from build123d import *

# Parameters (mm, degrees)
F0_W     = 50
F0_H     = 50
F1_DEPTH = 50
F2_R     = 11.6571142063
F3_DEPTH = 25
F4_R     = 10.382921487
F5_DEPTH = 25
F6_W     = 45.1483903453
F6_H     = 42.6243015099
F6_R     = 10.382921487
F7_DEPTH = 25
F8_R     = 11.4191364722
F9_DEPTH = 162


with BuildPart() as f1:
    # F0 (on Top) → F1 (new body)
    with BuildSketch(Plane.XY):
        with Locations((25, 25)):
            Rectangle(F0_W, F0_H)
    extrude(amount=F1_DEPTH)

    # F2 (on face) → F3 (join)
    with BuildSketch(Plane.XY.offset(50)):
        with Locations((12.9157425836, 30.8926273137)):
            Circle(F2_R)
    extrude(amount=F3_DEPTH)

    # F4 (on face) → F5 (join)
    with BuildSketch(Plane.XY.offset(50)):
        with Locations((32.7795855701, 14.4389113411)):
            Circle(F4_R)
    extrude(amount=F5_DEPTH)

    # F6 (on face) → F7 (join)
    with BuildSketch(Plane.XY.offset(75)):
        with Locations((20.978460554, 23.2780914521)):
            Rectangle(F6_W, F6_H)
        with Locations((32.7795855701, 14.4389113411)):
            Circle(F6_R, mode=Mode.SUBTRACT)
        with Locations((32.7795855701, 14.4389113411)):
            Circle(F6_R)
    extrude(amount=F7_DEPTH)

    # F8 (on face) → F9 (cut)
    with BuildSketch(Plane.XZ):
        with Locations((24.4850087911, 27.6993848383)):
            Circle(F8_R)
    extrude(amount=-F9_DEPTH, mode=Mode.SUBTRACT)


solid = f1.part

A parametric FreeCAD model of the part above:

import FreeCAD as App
import Part
import Sketcher
from FreeCAD import Vector

doc = App.newDocument("Part")
body = doc.addObject("PartDesign::Body", "Body")

# Sketch on XY plane
sketch1 = body.newObject("Sketcher::SketchObject", "Sketch")
sketch1.AttachmentSupport = (doc.getObject("XY_Plane"), [""])
sketch1.MapMode = "FlatFace"
sketch1.addGeometry(Part.LineSegment(Vector(0, 50, 0), Vector(0, 0, 0)), False)
sketch1.addGeometry(Part.LineSegment(Vector(0, 0, 0), Vector(50, 0, 0)), False)
sketch1.addGeometry(Part.LineSegment(Vector(50, 0, 0), Vector(50, 50, 0)), False)
sketch1.addGeometry(Part.LineSegment(Vector(50, 50, 0), Vector(0, 50, 0)), False)
sketch1.addConstraint(Sketcher.Constraint("Coincident", 0, 2, 1, 1))
sketch1.addConstraint(Sketcher.Constraint("Coincident", 1, 2, 2, 1))
sketch1.addConstraint(Sketcher.Constraint("Coincident", 2, 2, 3, 1))
sketch1.addConstraint(Sketcher.Constraint("Coincident", 3, 2, 0, 1))
sketch1.addConstraint(Sketcher.Constraint("Vertical", 0))
sketch1.addConstraint(Sketcher.Constraint("Horizontal", 1))
sketch1.addConstraint(Sketcher.Constraint("Vertical", 2))
sketch1.addConstraint(Sketcher.Constraint("Horizontal", 3))
sketch1.addConstraint(Sketcher.Constraint("Coincident", 0, 2, -1, 1))
sketch1.addConstraint(Sketcher.Constraint("Equal", 3, 0))
sketch1.addConstraint(Sketcher.Constraint("DistanceX", 1, 1, 1, 2, 50.0))
pad1 = body.newObject("PartDesign::Pad", "Pad")
pad1.Profile = sketch1
pad1.Length = 50

# Sketch on XY plane
sketch2 = body.newObject("Sketcher::SketchObject", "Sketch001")
sketch2.AttachmentSupport = (doc.getObject("XY_Plane"), [""])
sketch2.MapMode = "FlatFace"
sketch2.AttachmentOffset = App.Placement(Vector(0, 0, 50), App.Rotation())
sketch2.addGeometry(Part.Circle(Vector(13, 31, 0), Vector(0, 0, 1), 12), False)
sketch2.addConstraint(Sketcher.Constraint("Diameter", 0, 23.314228))
sketch2.addConstraint(Sketcher.Constraint("DistanceX", -1, 1, 0, 3, 12.915743))
sketch2.addConstraint(Sketcher.Constraint("DistanceY", -1, 1, 0, 3, 30.892627))
pad2 = body.newObject("PartDesign::Pad", "Pad001")
pad2.Profile = sketch2
pad2.Length = 25

# Sketch on XY plane
sketch3 = body.newObject("Sketcher::SketchObject", "Sketch002")
sketch3.AttachmentSupport = (doc.getObject("XY_Plane"), [""])
sketch3.MapMode = "FlatFace"
sketch3.AttachmentOffset = App.Placement(Vector(0, 0, 50), App.Rotation())
sketch3.addGeometry(Part.Circle(Vector(33, 14, 0), Vector(0, 0, 1), 10), False)
sketch3.addConstraint(Sketcher.Constraint("Diameter", 0, 20.765843))
sketch3.addConstraint(Sketcher.Constraint("DistanceY", -1, 1, 0, 3, 14.438911))
sketch3.addConstraint(Sketcher.Constraint("DistanceX", -1, 1, 0, 3, 32.779586))
pad3 = body.newObject("PartDesign::Pad", "Pad002")
pad3.Profile = sketch3
pad3.Length = 25

# Sketch on XY plane
sketch4 = body.newObject("Sketcher::SketchObject", "Sketch003")
sketch4.AttachmentSupport = (doc.getObject("XY_Plane"), [""])
sketch4.MapMode = "FlatFace"
sketch4.AttachmentOffset = App.Placement(Vector(0, 0, 75), App.Rotation())
sketch4.addGeometry(Part.LineSegment(Vector(-2, 45, 0), Vector(-2, 2, 0)), False)
sketch4.addGeometry(Part.LineSegment(Vector(-2, 2, 0), Vector(44, 2, 0)), False)
sketch4.addGeometry(Part.LineSegment(Vector(44, 2, 0), Vector(44, 45, 0)), False)
sketch4.addGeometry(Part.LineSegment(Vector(44, 45, 0), Vector(-2, 45, 0)), False)
sketch4.addConstraint(Sketcher.Constraint("Coincident", 0, 2, 1, 1))
sketch4.addConstraint(Sketcher.Constraint("Coincident", 1, 2, 2, 1))
sketch4.addConstraint(Sketcher.Constraint("Coincident", 2, 2, 3, 1))
sketch4.addConstraint(Sketcher.Constraint("Coincident", 3, 2, 0, 1))
sketch4.addConstraint(Sketcher.Constraint("Vertical", 0))
sketch4.addConstraint(Sketcher.Constraint("Horizontal", 1))
sketch4.addConstraint(Sketcher.Constraint("Vertical", 2))
sketch4.addConstraint(Sketcher.Constraint("Horizontal", 3))
sketch4.addConstraint(Sketcher.Constraint("DistanceY", 0, 2, 0, 1, 42.624302))
sketch4.addConstraint(Sketcher.Constraint("DistanceX", 1, 1, 1, 2, 45.14839))
sketch4.addConstraint(Sketcher.Constraint("DistanceY", -1, 1, 0, 2, 1.965941))
sketch4.addConstraint(Sketcher.Constraint("DistanceX", 0, 2, -1, 1, 1.595735))
pad4 = body.newObject("PartDesign::Pad", "Pad003")
pad4.Profile = sketch4
pad4.Length = 25

# Sketch on XZ plane
sketch5 = body.newObject("Sketcher::SketchObject", "Sketch004")
sketch5.AttachmentSupport = (doc.getObject("XZ_Plane"), [""])
sketch5.MapMode = "FlatFace"
sketch5.addGeometry(Part.Circle(Vector(24, 28, 0), Vector(0, 0, 1), 11), False)
sketch5.addConstraint(Sketcher.Constraint("Diameter", 0, 22.838273))
sketch5.addConstraint(Sketcher.Constraint("DistanceX", -1, 1, 0, 3, 24.485009))
sketch5.addConstraint(Sketcher.Constraint("DistanceY", -1, 1, 0, 3, 27.699385))
pocket1 = body.newObject("PartDesign::Pocket", "Pocket")
pocket1.Profile = sketch5
pocket1.Length = 162

doc.recompute()
